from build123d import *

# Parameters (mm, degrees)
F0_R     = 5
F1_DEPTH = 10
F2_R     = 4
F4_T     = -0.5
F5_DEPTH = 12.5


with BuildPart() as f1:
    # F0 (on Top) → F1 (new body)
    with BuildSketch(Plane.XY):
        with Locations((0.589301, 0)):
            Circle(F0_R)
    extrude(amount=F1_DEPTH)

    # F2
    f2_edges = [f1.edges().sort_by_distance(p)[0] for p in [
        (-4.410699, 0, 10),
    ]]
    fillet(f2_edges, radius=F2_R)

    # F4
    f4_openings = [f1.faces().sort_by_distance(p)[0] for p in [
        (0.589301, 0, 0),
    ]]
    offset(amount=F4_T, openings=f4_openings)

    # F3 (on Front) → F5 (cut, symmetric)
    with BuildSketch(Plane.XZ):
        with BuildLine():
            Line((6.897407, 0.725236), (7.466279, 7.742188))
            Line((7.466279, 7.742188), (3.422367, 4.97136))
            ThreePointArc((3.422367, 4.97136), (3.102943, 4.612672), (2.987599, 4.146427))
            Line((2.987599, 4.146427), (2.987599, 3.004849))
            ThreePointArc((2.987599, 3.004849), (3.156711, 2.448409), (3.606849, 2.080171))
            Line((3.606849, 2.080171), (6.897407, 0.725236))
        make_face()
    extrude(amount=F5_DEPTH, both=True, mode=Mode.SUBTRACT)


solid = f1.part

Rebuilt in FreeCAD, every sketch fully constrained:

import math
import FreeCAD as App
import Part
import Sketcher
Q = App.Units.Quantity


def edges_at(feature, points):
    """Names of the edges that pass closest to the given points."""
    edges = feature.Shape.Edges
    near = lambda p: min(range(len(edges)), key=lambda i: edges[i].distToShape(Part.Vertex(*p))[0])
    return sorted({f"Edge{near(p) + 1}" for p in points})


def faces_at(feature, points):
    """Names of the faces that lie closest to the given points."""
    faces = feature.Shape.Faces
    near = lambda p: min(range(len(faces)), key=lambda i: faces[i].distToShape(Part.Vertex(*p))[0])
    return sorted({f"Face{near(p) + 1}" for p in points})

doc = App.newDocument("Part")
body = doc.addObject("PartDesign::Body", "Body")

# Sketch on XY plane
sketch1 = body.newObject("Sketcher::SketchObject", "Sketch")
sketch1.AttachmentSupport = (doc.getObject("XY_Plane"), [""])
sketch1.MapMode = "FlatFace"
sketch1.addGeometry(Part.Circle(App.Vector(1, 0, 0), App.Vector(0, 0, 1), 5), False)
sketch1.addConstraint(Sketcher.Constraint("PointOnObject", 0, 3, -1))
sketch1.addConstraint(Sketcher.Constraint("Diameter", 0, Q("10 mm")))
sketch1.addConstraint(Sketcher.Constraint("DistanceX", -1, 1, 0, 3, Q("0.589301 mm")))
pad1 = body.newObject("PartDesign::Pad", "Pad")
pad1.Profile = sketch1
pad1.Length = 10
doc.recompute()

fillet = body.newObject("PartDesign::Fillet", "Fillet")
fillet.Base = (pad1, edges_at(pad1, [(-4.411, 0, 10)]))
fillet.Radius = 4
doc.recompute()

thickness = body.newObject("PartDesign::Thickness", "Thickness")
thickness.Base = (fillet, faces_at(fillet, [(0.589, 0, 0)]))
thickness.Value = 0.5
thickness.Reversed = True
thickness.Join = "Arc"

# Sketch on XZ plane
sketch2 = body.newObject("Sketcher::SketchObject", "Sketch001")
sketch2.AttachmentSupport = (doc.getObject("XZ_Plane"), [""])
sketch2.MapMode = "FlatFace"
sketch2.addGeometry(Part.LineSegment(App.Vector(6.9, 0.7, 0), App.Vector(7.5, 7.7, 0)), False)
sketch2.addGeometry(Part.LineSegment(App.Vector(7.5, 7.7, 0), App.Vector(3.4, 5, 0)), False)
sketch2.addGeometry(Part.ArcOfCircle(Part.Circle(App.Vector(4, 4.1, 0), App.Vector(0, 0, 1), 1), math.radians(124), math.radians(180)), False)
sketch2.addGeometry(Part.LineSegment(App.Vector(3, 4.1, 0), App.Vector(3, 3, 0)), False)
sketch2.addGeometry(Part.ArcOfCircle(Part.Circle(App.Vector(4, 3, 0), App.Vector(0, 0, 1), 1), math.radians(180), math.radians(248)), False)
sketch2.addGeometry(Part.LineSegment(App.Vector(3.6, 2.1, 0), App.Vector(6.9, 0.7, 0)), False)
sketch2.addConstraint(Sketcher.Constraint("Coincident", 0, 2, 1, 1))
sketch2.addConstraint(Sketcher.Constraint("Tangent", 1, 2, 2, 1))
sketch2.addConstraint(Sketcher.Constraint("Tangent", 2, 2, 3, 1))
sketch2.addConstraint(Sketcher.Constraint("Tangent", 3, 2, 4, 1))
sketch2.addConstraint(Sketcher.Constraint("Tangent", 4, 2, 5, 1))
sketch2.addConstraint(Sketcher.Constraint("Coincident", 5, 2, 0, 1))
sketch2.addConstraint(Sketcher.Constraint("Vertical", 3))
sketch2.addConstraint(Sketcher.Constraint("Radius", 2, Q("1.000001 mm")))
sketch2.addConstraint(Sketcher.Constraint("Radius", 4, Q("0.999999 mm")))
sketch2.addConstraint(Sketcher.Constraint("Distance", 5, Q("3.558598 mm")))
sketch2.addConstraint(Sketcher.Constraint("DistanceX", -1, 1, 2, 3, Q("3.9876 mm")))
sketch2.addConstraint(Sketcher.Constraint("DistanceY", 3, 2, 3, 1, Q("1.141578 mm")))
sketch2.addConstraint(Sketcher.Constraint("DistanceY", -1, 1, 4, 3, Q("3.004848 mm")))
sketch2.addConstraint(Sketcher.Constraint("DistanceX", -1, 1, 0, 2, Q("7.466279 mm")))
sketch2.addConstraint(Sketcher.Constraint("DistanceY", -1, 1, 1, 2, Q("4.97136 mm")))
sketch2.addConstraint(Sketcher.Constraint("DistanceX", -1, 1, 4, 2, Q("3.606849 mm")))
pocket1 = body.newObject("PartDesign::Pocket", "Pocket")
pocket1.Profile = sketch2
pocket1.Length = 25
pocket1.Midplane = True

doc.recompute()
